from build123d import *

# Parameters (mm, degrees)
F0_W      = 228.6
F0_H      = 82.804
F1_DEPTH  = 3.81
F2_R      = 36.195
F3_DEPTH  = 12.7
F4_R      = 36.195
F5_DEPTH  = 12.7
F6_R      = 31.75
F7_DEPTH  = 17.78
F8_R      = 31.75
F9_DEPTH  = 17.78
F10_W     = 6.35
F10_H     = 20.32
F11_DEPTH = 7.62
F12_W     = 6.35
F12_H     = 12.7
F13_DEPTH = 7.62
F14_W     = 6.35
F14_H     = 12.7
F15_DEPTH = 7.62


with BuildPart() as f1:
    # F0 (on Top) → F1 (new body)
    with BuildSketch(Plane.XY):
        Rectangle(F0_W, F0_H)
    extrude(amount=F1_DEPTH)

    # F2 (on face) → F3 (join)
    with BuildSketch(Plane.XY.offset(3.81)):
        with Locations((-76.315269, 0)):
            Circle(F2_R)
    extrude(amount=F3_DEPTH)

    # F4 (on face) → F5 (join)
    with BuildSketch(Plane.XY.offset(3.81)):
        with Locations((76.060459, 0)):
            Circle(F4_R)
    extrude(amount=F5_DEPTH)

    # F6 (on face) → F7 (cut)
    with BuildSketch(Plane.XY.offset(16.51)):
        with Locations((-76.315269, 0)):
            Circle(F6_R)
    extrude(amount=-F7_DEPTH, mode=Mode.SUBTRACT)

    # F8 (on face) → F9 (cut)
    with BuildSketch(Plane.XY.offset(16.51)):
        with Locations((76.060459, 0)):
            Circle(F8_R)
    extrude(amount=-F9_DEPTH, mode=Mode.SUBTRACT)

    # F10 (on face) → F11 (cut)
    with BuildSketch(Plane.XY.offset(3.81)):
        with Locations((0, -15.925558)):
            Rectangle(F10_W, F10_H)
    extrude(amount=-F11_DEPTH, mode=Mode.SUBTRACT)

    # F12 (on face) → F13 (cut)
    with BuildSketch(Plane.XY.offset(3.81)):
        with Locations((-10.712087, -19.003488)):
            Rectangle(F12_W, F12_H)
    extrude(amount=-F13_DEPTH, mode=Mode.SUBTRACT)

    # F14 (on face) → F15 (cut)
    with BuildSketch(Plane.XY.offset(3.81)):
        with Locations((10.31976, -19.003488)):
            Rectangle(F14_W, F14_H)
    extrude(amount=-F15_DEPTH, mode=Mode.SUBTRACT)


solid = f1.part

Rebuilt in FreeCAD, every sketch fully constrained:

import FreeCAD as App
import Part
import Sketcher
from FreeCAD import Vector
Q = App.Units.Quantity


def add_polygon(sketch, points):
    """Adds a closed chain of lines whose ends are joined by coincident constraints."""
    first, n = sketch.GeometryCount, len(points)
    for a, b in zip(points, points[1:] + points[:1]):
        sketch.addGeometry(Part.LineSegment(App.Vector(*a, 0), App.Vector(*b, 0)), False)
    for i in range(n):
        sketch.addConstraint(Sketcher.Constraint("Coincident", first + i, 2, first + (i + 1) % n, 1))

doc = App.newDocument("Part")
body = doc.addObject("PartDesign::Body", "Body")

# Sketch on XY plane
sketch1 = doc.addObject("Sketcher::SketchObject", "Sketch")
body.addObject(sketch1)
sketch1.AttachmentSupport = (doc.XY_Plane, [""])
sketch1.MapMode = "FlatFace"
add_polygon(sketch1, [(-114, 41), (-114, -41), (114, -41), (114, 41)])  # lines 0-3
sketch1.addConstraint([
    Sketcher.Constraint("Vertical", 0),
    Sketcher.Constraint("Horizontal", 1),
    Sketcher.Constraint("Vertical", 2),
    Sketcher.Constraint("Horizontal", 3),
    Sketcher.Constraint("Symmetric", 0, 2, 2, 2, -1, 1),
    Sketcher.Constraint("DistanceX", 1, 1, 1, 2, Q("9 in")),
    Sketcher.Constraint("DistanceY", 0, 2, 0, 1, Q("3.26 in")),
])
pad1 = doc.addObject("PartDesign::Pad", "Pad")
body.addObject(pad1)
pad1.Profile = sketch1
pad1.Length = Q("0.15 in")

# Sketch on XY plane
sketch2 = doc.addObject("Sketcher::SketchObject", "Sketch001")
body.addObject(sketch2)
sketch2.AttachmentSupport = (doc.XY_Plane, [""])
sketch2.MapMode = "FlatFace"
sketch2.AttachmentOffset = App.Placement(Vector(0, 0, 0.15 * 25.4), App.Rotation())
sketch2.addGeometry(Part.Circle(Vector(-76, 0, 0), Vector(0, 0, 1), 36), False)
sketch2.addConstraint([
    Sketcher.Constraint("PointOnObject", 0, 3, -1),
    Sketcher.Constraint("Diameter", 0, Q("2.85 in")),
    Sketcher.Constraint("DistanceX", 0, 3, -1, 1, Q("76.315269 mm")),
])
pad2 = doc.addObject("PartDesign::Pad", "Pad001")
body.addObject(pad2)
pad2.Profile = sketch2
pad2.Length = Q("0.5 in")

# Sketch on XY plane
sketch3 = doc.addObject("Sketcher::SketchObject", "Sketch002")
body.addObject(sketch3)
sketch3.AttachmentSupport = (doc.XY_Plane, [""])
sketch3.MapMode = "FlatFace"
sketch3.AttachmentOffset = App.Placement(Vector(0, 0, 0.15 * 25.4), App.Rotation())
sketch3.addGeometry(Part.Circle(Vector(76, 0, 0), Vector(0, 0, 1), 36), False)
sketch3.addConstraint([
    Sketcher.Constraint("PointOnObject", 0, 3, -1),
    Sketcher.Constraint("Diameter", 0, Q("2.85 in")),
    Sketcher.Constraint("DistanceX", -1, 1, 0, 3, Q("76.060459 mm")),
])
pad3 = doc.addObject("PartDesign::Pad", "Pad002")
body.addObject(pad3)
pad3.Profile = sketch3
pad3.Length = Q("0.5 in")

# Sketch on XY plane
sketch4 = doc.addObject("Sketcher::SketchObject", "Sketch003")
body.addObject(sketch4)
sketch4.AttachmentSupport = (doc.XY_Plane, [""])
sketch4.MapMode = "FlatFace"
sketch4.AttachmentOffset = App.Placement(Vector(0, 0, 0.65 * 25.4), App.Rotation())
sketch4.addGeometry(Part.Circle(Vector(-76, 0, 0), Vector(0, 0, 1), 32), False)
sketch4.addConstraint([
    Sketcher.Constraint("PointOnObject", 0, 3, -1),
    Sketcher.Constraint("Diameter", 0, Q("2.5 in")),
    Sketcher.Constraint("DistanceX", 0, 3, -1, 1, Q("76.315269 mm")),
])
pocket1 = doc.addObject("PartDesign::Pocket", "Pocket")
body.addObject(pocket1)
pocket1.Profile = sketch4
pocket1.Length = Q("0.7 in")

# Sketch on XY plane
sketch5 = doc.addObject("Sketcher::SketchObject", "Sketch004")
body.addObject(sketch5)
sketch5.AttachmentSupport = (doc.XY_Plane, [""])
sketch5.MapMode = "FlatFace"
sketch5.AttachmentOffset = App.Placement(Vector(0, 0, 0.65 * 25.4), App.Rotation())
sketch5.addGeometry(Part.Circle(Vector(76, 0, 0), Vector(0, 0, 1), 32), False)
sketch5.addConstraint([
    Sketcher.Constraint("PointOnObject", 0, 3, -1),
    Sketcher.Constraint("Diameter", 0, Q("2.5 in")),
    Sketcher.Constraint("DistanceX", -1, 1, 0, 3, Q("76.060459 mm")),
])
pocket2 = doc.addObject("PartDesign::Pocket", "Pocket001")
body.addObject(pocket2)
pocket2.Profile = sketch5
pocket2.Length = Q("0.7 in")

# Sketch on XY plane
sketch6 = doc.addObject("Sketcher::SketchObject", "Sketch005")
body.addObject(sketch6)
sketch6.AttachmentSupport = (doc.XY_Plane, [""])
sketch6.MapMode = "FlatFace"
sketch6.AttachmentOffset = App.Placement(Vector(0, 0, 0.15 * 25.4), App.Rotation())
add_polygon(sketch6, [(-3, -6), (-3, -26), (3, -26), (3, -6)])  # lines 0-3
sketch6.addConstraint([
    Sketcher.Constraint("Vertical", 0),
    Sketcher.Constraint("Horizontal", 1),
    Sketcher.Constraint("Vertical", 2),
    Sketcher.Constraint("Horizontal", 3),
    Sketcher.Constraint("DistanceY", 0, 2, 0, 1, Q("0.8 in")),
    Sketcher.Constraint("DistanceX", 1, 1, 1, 2, Q("0.25 in")),
    Sketcher.Constraint("DistanceX", 0, 2, -1, 1, Q("0.125 in")),
    Sketcher.Constraint("DistanceY", 2, 2, -1, 1, Q("5.765558 mm")),
])
pocket3 = doc.addObject("PartDesign::Pocket", "Pocket002")
body.addObject(pocket3)
pocket3.Profile = sketch6
pocket3.Length = Q("0.3 in")

# Sketch on XY plane
sketch7 = doc.addObject("Sketcher::SketchObject", "Sketch006")
body.addObject(sketch7)
sketch7.AttachmentSupport = (doc.XY_Plane, [""])
sketch7.MapMode = "FlatFace"
sketch7.AttachmentOffset = App.Placement(Vector(0, 0, 0.15 * 25.4), App.Rotation())
add_polygon(sketch7, [(-14, -13), (-14, -25), (-8, -25), (-8, -13)])  # lines 0-3
sketch7.addConstraint([
    Sketcher.Constraint("Vertical", 0),
    Sketcher.Constraint("Horizontal", 1),
    Sketcher.Constraint("Vertical", 2),
    Sketcher.Constraint("Horizontal", 3),
    Sketcher.Constraint("DistanceY", 0, 2, 0, 1, Q("0.5 in")),
    Sketcher.Constraint("DistanceX", 1, 1, 1, 2, Q("0.25 in")),
    Sketcher.Constraint("DistanceX", 0, 2, -1, 1, Q("13.887087 mm")),
    Sketcher.Constraint("DistanceY", 0, 2, -1, 1, Q("25.353488 mm")),
])
pocket4 = doc.addObject("PartDesign::Pocket", "Pocket003")
body.addObject(pocket4)
pocket4.Profile = sketch7
pocket4.Length = Q("0.3 in")

# Sketch on XY plane
sketch8 = doc.addObject("Sketcher::SketchObject", "Sketch007")
body.addObject(sketch8)
sketch8.AttachmentSupport = (doc.XY_Plane, [""])
sketch8.MapMode = "FlatFace"
sketch8.AttachmentOffset = App.Placement(Vector(0, 0, 0.15 * 25.4), App.Rotation())
add_polygon(sketch8, [(7, -13), (7, -25), (13, -25), (13, -13)])  # lines 0-3
sketch8.addConstraint([
    Sketcher.Constraint("Vertical", 0),
    Sketcher.Constraint("Horizontal", 1),
    Sketcher.Constraint("Vertical", 2),
    Sketcher.Constraint("Horizontal", 3),
    Sketcher.Constraint("DistanceY", 0, 2, 0, 1, Q("0.5 in")),
    Sketcher.Constraint("DistanceX", 1, 1, 1, 2, Q("0.25 in")),
    Sketcher.Constraint("DistanceX", -1, 1, 0, 2, Q("7.14476 mm")),
    Sketcher.Constraint("DistanceY", 0, 2, -1, 1, Q("25.353488 mm")),
])
pocket5 = doc.addObject("PartDesign::Pocket", "Pocket004")
body.addObject(pocket5)
pocket5.Profile = sketch8
pocket5.Length = Q("0.3 in")

doc.recompute()
